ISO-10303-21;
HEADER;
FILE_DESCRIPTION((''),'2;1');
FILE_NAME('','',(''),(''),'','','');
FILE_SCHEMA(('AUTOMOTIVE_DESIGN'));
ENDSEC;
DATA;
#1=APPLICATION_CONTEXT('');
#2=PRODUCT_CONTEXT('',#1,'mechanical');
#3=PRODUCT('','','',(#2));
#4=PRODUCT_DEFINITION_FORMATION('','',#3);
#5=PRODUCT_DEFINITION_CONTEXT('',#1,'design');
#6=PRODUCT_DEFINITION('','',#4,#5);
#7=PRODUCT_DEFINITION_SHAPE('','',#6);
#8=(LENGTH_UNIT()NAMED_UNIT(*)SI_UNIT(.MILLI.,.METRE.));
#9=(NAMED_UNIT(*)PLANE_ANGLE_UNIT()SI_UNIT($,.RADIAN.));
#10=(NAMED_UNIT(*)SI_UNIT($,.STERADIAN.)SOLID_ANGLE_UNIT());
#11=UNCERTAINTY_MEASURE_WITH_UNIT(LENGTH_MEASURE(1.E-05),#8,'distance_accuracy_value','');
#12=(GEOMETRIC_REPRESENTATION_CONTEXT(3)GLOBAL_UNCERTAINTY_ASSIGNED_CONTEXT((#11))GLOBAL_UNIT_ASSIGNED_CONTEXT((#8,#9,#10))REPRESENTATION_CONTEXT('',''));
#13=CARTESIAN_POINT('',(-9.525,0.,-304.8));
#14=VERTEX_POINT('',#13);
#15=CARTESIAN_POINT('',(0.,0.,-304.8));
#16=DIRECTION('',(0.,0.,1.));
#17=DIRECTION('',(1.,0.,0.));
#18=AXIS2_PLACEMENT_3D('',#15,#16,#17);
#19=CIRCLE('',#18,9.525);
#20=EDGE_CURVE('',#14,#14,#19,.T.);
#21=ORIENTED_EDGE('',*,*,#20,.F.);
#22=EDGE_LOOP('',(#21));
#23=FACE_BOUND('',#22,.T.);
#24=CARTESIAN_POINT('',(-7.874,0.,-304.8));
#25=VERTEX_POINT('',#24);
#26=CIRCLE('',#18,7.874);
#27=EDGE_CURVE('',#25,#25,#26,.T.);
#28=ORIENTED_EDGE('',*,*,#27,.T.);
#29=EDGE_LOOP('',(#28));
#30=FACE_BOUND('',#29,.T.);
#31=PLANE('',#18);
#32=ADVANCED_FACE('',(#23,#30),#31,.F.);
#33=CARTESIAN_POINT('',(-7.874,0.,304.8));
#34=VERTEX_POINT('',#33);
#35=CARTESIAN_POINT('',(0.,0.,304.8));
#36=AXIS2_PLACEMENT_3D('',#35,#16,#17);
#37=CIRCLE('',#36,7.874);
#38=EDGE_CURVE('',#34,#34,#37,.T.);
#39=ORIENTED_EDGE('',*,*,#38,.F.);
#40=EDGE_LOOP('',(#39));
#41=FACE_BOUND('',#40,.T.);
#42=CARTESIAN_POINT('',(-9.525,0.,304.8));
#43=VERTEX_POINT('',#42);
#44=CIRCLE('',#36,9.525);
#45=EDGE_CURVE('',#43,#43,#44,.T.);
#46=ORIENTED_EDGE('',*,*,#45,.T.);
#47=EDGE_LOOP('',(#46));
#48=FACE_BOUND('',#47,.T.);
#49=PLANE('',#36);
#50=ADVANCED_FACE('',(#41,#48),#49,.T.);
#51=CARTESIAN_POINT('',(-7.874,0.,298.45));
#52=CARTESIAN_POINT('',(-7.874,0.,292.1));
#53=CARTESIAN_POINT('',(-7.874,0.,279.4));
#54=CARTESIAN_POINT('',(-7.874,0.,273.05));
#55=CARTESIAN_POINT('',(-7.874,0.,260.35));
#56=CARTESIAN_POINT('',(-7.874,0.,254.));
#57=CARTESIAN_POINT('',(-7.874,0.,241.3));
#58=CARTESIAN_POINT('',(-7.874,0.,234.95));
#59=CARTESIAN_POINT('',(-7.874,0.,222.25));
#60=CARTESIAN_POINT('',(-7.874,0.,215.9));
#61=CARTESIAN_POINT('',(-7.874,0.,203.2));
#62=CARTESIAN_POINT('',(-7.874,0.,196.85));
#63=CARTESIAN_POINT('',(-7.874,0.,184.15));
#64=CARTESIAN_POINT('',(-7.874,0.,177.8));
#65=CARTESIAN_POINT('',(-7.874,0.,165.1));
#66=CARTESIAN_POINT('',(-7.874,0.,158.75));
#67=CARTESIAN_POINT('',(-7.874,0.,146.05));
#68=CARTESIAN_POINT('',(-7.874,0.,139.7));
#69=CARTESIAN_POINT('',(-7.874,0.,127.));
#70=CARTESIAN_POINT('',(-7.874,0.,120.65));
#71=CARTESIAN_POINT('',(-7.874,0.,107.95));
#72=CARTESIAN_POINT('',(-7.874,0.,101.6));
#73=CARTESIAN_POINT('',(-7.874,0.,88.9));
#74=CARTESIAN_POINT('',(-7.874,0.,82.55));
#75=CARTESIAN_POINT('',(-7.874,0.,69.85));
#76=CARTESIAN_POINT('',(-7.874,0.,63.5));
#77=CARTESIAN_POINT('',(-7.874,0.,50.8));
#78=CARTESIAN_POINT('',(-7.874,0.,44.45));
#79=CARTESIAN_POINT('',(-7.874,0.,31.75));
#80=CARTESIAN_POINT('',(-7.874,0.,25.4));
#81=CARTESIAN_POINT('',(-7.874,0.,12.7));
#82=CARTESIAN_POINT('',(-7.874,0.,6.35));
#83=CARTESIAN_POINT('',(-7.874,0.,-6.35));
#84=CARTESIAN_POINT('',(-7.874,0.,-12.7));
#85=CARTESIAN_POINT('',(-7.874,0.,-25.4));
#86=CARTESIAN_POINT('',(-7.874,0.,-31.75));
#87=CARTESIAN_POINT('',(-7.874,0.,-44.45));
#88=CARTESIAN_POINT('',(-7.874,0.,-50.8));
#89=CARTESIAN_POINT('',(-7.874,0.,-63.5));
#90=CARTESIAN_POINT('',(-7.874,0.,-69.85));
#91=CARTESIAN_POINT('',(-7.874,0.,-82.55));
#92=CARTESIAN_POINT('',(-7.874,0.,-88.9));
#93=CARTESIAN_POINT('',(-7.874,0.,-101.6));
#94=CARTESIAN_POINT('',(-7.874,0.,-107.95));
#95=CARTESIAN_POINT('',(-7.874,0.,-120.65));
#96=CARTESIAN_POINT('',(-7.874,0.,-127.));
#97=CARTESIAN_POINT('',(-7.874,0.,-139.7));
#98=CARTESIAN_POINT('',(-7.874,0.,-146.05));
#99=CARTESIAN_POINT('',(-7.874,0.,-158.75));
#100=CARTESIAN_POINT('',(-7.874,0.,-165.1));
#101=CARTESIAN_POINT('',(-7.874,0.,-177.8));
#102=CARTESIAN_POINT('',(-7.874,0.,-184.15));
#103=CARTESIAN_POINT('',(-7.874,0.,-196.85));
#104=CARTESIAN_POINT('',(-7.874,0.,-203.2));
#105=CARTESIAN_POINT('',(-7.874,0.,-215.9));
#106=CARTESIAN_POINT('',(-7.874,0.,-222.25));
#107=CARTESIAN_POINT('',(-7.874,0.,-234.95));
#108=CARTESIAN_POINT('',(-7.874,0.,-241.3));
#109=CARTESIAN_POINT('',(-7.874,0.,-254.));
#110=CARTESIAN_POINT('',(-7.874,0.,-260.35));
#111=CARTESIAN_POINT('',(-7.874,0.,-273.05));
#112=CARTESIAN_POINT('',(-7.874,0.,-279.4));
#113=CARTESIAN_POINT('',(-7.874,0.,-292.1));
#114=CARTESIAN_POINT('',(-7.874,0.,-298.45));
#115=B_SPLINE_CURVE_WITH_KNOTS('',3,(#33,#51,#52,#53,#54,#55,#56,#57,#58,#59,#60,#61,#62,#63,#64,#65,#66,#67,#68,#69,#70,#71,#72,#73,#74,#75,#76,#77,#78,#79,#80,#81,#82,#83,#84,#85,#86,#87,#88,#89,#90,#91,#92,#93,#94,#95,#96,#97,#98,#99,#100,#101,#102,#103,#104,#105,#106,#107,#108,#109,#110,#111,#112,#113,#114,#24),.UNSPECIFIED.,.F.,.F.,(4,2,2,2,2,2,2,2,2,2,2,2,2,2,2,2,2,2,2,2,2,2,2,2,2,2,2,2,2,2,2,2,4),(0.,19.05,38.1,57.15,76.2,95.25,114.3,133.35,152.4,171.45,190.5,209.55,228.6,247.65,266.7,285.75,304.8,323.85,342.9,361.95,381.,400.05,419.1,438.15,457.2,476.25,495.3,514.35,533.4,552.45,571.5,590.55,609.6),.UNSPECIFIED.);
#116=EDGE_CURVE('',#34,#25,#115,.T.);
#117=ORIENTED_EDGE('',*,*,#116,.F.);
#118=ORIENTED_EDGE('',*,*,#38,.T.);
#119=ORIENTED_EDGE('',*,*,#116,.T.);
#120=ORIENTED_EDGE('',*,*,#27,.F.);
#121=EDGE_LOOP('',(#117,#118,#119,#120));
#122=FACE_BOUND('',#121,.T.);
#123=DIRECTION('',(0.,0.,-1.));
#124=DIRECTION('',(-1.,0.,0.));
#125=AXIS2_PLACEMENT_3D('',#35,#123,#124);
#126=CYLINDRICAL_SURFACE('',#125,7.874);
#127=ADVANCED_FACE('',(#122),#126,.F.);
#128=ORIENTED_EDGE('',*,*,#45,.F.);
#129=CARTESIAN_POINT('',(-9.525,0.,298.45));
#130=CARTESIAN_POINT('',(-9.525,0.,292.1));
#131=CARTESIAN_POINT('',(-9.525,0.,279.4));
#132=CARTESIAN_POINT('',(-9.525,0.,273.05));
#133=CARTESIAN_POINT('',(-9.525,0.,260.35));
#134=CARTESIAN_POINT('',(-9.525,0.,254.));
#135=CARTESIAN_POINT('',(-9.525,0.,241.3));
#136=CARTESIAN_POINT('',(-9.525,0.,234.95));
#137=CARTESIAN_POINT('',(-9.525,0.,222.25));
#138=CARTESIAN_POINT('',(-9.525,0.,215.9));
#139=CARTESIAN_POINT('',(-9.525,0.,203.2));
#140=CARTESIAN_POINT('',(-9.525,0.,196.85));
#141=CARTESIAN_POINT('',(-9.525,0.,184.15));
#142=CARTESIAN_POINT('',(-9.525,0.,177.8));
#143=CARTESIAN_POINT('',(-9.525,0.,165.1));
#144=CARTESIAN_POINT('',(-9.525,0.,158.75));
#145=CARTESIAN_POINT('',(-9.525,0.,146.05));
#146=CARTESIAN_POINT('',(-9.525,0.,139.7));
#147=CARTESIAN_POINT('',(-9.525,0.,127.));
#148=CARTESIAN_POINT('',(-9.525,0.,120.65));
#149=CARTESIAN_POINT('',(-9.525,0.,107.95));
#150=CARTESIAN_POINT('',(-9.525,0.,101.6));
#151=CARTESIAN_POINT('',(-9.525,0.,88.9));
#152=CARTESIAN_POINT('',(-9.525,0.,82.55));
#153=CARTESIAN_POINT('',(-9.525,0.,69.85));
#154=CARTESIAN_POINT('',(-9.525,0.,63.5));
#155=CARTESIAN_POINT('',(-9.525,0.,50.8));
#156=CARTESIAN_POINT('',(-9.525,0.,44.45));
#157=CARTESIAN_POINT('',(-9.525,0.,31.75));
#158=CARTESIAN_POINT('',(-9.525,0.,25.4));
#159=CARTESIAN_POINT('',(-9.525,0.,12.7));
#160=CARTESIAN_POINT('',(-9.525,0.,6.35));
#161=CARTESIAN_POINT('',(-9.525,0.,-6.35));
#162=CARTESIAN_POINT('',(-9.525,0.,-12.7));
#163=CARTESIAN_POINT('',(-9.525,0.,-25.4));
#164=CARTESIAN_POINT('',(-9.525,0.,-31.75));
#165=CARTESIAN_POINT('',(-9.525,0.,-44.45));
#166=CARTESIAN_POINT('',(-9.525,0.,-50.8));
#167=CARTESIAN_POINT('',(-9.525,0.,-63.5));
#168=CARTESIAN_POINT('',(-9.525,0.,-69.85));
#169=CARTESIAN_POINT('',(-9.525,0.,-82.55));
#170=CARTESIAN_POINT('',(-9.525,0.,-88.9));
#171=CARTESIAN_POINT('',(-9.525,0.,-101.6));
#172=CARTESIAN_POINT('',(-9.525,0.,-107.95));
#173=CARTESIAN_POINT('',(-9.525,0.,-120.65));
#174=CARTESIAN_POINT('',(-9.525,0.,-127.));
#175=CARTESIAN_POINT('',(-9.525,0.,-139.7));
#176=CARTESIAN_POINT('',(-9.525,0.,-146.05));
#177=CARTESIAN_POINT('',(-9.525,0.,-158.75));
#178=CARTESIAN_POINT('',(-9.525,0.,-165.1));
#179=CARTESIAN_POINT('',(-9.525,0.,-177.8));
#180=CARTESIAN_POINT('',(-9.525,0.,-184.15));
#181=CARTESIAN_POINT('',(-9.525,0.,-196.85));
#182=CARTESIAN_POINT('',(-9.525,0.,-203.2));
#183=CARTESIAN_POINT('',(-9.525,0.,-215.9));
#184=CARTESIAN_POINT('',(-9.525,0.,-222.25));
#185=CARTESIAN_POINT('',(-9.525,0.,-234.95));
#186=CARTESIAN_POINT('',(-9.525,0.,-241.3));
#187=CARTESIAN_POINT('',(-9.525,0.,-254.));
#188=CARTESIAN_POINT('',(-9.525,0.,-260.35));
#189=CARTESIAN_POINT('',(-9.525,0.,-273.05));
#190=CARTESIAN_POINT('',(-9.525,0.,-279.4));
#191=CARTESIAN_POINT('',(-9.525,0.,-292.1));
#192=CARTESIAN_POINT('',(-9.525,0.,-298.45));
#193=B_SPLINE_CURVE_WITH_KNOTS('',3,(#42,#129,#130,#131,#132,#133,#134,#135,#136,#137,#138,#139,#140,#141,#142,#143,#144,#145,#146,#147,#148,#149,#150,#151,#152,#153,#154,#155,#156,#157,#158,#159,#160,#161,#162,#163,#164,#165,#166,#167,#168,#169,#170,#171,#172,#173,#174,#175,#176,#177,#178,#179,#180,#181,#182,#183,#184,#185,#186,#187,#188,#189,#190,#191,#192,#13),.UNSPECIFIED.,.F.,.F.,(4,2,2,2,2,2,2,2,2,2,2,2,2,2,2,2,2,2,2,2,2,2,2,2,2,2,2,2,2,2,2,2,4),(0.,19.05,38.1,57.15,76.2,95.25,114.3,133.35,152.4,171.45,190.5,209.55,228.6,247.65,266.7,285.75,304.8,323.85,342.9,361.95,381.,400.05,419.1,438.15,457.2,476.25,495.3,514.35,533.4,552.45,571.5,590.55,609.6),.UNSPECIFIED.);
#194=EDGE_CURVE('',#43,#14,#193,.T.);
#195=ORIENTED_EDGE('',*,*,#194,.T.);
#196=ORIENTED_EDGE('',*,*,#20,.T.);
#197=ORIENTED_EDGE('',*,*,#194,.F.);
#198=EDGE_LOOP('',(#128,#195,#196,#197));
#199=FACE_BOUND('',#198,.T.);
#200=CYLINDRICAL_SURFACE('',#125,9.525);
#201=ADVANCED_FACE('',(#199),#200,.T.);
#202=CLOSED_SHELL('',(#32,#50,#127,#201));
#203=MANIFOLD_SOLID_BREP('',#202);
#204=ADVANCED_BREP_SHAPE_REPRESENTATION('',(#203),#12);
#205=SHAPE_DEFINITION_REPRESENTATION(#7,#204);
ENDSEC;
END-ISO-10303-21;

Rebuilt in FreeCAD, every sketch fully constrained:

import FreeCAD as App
import Part
import Sketcher
Q = App.Units.Quantity

doc = App.newDocument("Part")
body = doc.addObject("PartDesign::Body", "Body")

sketch1 = body.newObject("Sketcher::SketchObject", "Sketch")
sketch1.AttachmentSupport = (doc.getObject("XY_Plane"), [""])
sketch1.MapMode = "FlatFace"
sketch1.addGeometry(Part.Circle(App.Vector(0, 0, 0), App.Vector(0, 0, 1), 10), False)
sketch1.addGeometry(Part.Circle(App.Vector(0, 0, 0), App.Vector(0, 0, 1), 8), False)
sketch1.addConstraint(Sketcher.Constraint("Coincident", 0, 3, -1, 1))
sketch1.addConstraint(Sketcher.Constraint("Coincident", 1, 3, -1, 1))
sketch1.addConstraint(Sketcher.Constraint("Diameter", 0, Q("0.75 in")))
sketch1.addConstraint(Sketcher.Constraint("Diameter", 1, Q("0.62 in")))
pad1 = body.newObject("PartDesign::Pad", "Pad")
pad1.Profile = sketch1
pad1.Length = Q("24 in")
pad1.Midplane = True

doc.recompute()
